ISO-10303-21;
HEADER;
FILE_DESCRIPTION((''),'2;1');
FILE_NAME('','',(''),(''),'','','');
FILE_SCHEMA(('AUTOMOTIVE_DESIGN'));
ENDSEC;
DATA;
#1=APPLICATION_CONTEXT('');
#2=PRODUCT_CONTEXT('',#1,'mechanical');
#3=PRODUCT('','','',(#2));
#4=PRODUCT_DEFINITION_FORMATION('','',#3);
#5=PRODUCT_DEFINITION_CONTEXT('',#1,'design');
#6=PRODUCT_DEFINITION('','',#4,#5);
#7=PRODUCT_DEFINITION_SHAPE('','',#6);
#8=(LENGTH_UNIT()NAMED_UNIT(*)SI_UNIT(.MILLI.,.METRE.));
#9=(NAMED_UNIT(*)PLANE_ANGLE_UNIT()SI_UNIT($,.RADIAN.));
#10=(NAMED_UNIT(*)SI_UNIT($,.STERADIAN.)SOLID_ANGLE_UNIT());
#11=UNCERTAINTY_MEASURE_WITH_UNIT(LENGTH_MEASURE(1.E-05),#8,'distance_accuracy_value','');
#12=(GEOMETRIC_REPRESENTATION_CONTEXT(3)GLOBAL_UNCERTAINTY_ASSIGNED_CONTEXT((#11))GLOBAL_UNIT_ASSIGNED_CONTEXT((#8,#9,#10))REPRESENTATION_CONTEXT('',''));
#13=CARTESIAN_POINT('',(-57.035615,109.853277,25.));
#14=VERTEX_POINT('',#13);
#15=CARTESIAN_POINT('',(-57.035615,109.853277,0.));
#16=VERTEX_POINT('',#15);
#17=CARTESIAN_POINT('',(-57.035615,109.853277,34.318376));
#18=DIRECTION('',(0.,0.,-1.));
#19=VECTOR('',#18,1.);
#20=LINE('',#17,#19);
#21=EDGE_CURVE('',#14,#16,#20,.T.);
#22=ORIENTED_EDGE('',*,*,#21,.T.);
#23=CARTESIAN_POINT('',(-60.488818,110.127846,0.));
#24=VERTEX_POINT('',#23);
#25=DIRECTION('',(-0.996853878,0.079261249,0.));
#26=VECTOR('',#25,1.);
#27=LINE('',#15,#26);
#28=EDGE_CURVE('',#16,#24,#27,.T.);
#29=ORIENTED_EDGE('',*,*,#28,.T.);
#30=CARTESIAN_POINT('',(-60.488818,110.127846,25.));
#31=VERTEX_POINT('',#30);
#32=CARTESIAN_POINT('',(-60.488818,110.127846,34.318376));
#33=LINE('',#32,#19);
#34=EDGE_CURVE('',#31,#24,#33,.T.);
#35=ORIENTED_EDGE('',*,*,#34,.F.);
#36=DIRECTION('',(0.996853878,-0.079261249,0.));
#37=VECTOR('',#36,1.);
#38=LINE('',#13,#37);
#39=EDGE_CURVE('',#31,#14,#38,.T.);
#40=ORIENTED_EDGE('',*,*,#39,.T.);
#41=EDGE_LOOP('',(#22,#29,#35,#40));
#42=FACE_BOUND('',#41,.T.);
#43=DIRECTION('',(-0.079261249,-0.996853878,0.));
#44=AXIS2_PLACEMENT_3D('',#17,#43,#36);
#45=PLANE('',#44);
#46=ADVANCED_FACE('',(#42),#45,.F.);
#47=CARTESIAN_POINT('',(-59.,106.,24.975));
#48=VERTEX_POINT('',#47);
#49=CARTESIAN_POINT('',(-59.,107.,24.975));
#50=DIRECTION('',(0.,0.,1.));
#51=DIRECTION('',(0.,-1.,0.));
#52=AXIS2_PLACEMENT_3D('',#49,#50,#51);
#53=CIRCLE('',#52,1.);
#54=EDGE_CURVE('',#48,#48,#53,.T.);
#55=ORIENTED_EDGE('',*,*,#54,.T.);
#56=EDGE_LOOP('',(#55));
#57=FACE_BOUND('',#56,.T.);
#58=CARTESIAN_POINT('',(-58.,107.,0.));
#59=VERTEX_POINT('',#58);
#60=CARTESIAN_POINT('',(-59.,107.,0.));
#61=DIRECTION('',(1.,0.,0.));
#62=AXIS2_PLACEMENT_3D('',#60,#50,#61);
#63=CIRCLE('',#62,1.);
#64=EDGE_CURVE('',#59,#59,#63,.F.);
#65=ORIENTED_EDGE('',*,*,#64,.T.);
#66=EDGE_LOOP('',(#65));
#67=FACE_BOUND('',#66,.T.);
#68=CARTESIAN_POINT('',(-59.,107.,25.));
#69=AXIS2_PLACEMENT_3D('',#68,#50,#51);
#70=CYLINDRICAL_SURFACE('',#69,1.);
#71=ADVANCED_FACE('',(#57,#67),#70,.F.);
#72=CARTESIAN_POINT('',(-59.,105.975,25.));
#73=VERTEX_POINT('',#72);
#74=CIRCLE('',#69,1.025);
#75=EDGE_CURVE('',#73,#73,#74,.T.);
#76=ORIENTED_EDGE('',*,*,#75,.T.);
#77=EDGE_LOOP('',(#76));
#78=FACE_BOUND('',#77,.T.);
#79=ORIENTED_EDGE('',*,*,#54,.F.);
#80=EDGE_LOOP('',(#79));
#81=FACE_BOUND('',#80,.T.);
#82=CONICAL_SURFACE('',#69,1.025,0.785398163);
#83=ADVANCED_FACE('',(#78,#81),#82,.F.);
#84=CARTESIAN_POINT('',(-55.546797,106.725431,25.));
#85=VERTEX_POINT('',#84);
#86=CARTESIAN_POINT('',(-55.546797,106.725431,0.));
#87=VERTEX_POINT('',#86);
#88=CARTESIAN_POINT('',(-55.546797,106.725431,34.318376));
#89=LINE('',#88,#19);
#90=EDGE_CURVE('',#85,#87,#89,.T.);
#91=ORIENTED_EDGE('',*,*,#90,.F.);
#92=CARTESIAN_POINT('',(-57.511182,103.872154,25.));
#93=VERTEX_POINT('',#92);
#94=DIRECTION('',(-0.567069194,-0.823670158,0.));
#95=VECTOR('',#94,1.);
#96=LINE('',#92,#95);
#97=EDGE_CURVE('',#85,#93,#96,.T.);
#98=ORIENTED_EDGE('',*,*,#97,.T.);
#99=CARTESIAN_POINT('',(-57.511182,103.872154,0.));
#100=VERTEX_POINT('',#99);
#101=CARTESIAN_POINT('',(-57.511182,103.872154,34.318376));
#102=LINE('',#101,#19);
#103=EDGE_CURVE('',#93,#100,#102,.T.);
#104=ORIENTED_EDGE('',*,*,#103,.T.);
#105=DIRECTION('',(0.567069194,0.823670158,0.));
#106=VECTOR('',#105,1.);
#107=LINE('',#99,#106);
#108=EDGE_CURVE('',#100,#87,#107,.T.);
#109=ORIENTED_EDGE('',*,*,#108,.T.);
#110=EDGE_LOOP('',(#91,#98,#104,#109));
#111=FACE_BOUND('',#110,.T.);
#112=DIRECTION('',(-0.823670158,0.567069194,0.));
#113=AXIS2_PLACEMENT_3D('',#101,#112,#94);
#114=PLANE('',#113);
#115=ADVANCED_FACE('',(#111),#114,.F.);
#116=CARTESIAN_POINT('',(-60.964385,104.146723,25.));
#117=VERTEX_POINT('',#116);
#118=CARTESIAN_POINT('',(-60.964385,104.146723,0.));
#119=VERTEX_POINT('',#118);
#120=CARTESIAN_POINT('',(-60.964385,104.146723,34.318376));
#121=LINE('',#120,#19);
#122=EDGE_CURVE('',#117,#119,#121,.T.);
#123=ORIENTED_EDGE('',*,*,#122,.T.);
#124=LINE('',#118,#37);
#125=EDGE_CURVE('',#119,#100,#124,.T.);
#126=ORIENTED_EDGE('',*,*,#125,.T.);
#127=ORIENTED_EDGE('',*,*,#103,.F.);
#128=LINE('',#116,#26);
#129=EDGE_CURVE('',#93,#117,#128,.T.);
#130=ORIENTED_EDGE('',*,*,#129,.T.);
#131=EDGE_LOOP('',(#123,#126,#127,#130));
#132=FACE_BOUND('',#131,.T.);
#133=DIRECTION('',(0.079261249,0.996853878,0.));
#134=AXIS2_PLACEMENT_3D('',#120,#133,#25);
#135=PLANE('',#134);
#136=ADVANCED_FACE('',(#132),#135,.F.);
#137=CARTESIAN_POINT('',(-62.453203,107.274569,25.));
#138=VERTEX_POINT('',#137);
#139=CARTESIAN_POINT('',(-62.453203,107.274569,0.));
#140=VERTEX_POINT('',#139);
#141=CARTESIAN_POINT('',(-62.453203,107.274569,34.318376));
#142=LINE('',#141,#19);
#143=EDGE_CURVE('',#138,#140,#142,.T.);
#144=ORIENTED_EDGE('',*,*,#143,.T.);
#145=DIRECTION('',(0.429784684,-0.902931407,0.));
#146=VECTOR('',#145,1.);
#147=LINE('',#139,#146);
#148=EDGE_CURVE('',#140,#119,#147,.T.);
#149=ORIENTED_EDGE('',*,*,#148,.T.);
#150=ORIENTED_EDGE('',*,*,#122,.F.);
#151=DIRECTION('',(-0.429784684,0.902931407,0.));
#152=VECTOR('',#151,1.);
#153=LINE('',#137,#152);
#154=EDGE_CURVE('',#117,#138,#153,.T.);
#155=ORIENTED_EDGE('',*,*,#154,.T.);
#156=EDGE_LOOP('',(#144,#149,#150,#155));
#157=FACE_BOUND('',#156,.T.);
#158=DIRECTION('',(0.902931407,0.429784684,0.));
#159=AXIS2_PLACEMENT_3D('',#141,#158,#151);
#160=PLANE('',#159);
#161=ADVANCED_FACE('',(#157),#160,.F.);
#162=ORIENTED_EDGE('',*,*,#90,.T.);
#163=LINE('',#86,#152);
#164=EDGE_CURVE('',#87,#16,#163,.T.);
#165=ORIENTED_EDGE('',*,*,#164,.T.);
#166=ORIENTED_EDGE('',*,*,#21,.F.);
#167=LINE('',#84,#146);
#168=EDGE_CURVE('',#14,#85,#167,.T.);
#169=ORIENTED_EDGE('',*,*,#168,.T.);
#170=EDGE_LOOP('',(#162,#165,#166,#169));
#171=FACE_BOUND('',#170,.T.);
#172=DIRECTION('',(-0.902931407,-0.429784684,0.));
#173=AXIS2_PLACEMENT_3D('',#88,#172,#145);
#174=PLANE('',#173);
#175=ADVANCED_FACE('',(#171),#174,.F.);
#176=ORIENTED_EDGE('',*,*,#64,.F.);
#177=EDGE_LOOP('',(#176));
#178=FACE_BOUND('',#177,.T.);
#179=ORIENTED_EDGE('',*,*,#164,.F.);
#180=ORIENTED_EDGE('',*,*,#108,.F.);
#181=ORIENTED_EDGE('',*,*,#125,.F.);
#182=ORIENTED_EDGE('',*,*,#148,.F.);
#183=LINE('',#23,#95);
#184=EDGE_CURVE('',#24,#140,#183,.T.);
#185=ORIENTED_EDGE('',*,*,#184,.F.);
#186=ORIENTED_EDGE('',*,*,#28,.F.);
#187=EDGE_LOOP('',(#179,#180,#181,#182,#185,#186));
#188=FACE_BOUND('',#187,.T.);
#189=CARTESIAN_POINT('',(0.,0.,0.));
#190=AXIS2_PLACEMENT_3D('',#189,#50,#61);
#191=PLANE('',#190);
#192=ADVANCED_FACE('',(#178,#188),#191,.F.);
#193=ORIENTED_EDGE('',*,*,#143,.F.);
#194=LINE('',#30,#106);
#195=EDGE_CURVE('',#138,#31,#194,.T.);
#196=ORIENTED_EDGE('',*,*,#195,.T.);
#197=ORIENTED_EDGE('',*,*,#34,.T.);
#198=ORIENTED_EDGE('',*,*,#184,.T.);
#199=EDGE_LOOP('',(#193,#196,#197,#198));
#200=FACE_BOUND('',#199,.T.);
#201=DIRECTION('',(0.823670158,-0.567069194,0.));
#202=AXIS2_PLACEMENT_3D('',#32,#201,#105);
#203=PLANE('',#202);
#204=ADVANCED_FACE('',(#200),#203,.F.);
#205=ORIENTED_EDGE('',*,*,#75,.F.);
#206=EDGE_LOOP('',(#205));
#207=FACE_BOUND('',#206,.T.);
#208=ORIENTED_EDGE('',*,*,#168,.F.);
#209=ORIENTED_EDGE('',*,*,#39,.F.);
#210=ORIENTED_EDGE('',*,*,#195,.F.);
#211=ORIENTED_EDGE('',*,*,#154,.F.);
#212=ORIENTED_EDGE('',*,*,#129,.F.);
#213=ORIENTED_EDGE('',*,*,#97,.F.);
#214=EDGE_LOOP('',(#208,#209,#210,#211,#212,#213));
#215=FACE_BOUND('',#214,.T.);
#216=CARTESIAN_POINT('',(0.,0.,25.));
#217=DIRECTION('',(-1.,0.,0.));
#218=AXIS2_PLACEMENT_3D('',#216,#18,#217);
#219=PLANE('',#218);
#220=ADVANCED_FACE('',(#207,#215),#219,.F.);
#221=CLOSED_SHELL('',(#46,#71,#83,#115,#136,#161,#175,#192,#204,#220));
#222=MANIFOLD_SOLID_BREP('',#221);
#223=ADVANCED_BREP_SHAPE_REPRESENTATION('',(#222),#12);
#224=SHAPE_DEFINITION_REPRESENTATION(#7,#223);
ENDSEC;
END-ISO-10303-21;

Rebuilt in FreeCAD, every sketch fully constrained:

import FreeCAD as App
import Part
import Sketcher
from FreeCAD import Vector

doc = App.newDocument("Part")
body = doc.addObject("PartDesign::Body", "Body")

# Sketch on XY plane
sketch1 = body.newObject("Sketcher::SketchObject", "Sketch")
sketch1.AttachmentSupport = (doc.getObject("XY_Plane"), [""])
sketch1.MapMode = "FlatFace"
sketch1.addGeometry([
    Part.LineSegment(Vector(-60.5, 110.1, 0), Vector(-62.5, 107.3, 0)),  # 0
    Part.LineSegment(Vector(-62.5, 107.3, 0), Vector(-61, 104.1, 0)),  # 1
    Part.LineSegment(Vector(-61, 104.1, 0), Vector(-57.5, 103.9, 0)),  # 2
    Part.LineSegment(Vector(-57.5, 103.9, 0), Vector(-55.5, 106.7, 0)),  # 3
    Part.LineSegment(Vector(-55.5, 106.7, 0), Vector(-57, 109.9, 0)),  # 4
    Part.LineSegment(Vector(-57, 109.9, 0), Vector(-60.5, 110.1, 0)),  # 5
], False)
sketch1.addConstraint([
    Sketcher.Constraint("Coincident", 0, 2, 1, 1),
    Sketcher.Constraint("Coincident", 1, 2, 2, 1),
    Sketcher.Constraint("Coincident", 2, 2, 3, 1),
    Sketcher.Constraint("Coincident", 3, 2, 4, 1),
    Sketcher.Constraint("Coincident", 4, 2, 5, 1),
    Sketcher.Constraint("Coincident", 5, 2, 0, 1),
    Sketcher.Constraint("Parallel", 0, 3),
    Sketcher.Constraint("Parallel", 1, 4),
    Sketcher.Constraint("Parallel", 2, 5),
    Sketcher.Constraint("Equal", 0, 1),
    Sketcher.Constraint("Equal", 1, 2),
    Sketcher.Constraint("Equal", 2, 3),
    Sketcher.Constraint("Distance", 0, 3.464102),
    Sketcher.Constraint("DistanceY", -1, 1, 0, 2, 107.274569),
    Sketcher.Constraint("DistanceY", -1, 1, 3, 2, 106.725431),
    Sketcher.Constraint("DistanceY", 2, 2, 1, 2, 0.274569),
    Sketcher.Constraint("DistanceX", 0, 2, 2, 2, 4.942021),
    Sketcher.Constraint("DistanceX", 0, 2, -1, 1, 62.453203),
])
pad1 = body.newObject("PartDesign::Pad", "Pad")
pad1.Profile = sketch1
pad1.Length = 25

# Sketch on XY plane
sketch2 = body.newObject("Sketcher::SketchObject", "Sketch001")
sketch2.AttachmentSupport = (doc.getObject("XY_Plane"), [""])
sketch2.MapMode = "FlatFace"
sketch2.AttachmentOffset = App.Placement(Vector(0, 0, 25), App.Rotation())
sketch2.addGeometry(Part.Circle(Vector(-59, 107, 0), Vector(0, 0, 1), 1), False)
sketch2.addConstraint([
    Sketcher.Constraint("Diameter", 0, 2.0),
    Sketcher.Constraint("DistanceX", 0, 3, -1, 1, 59.0),
    Sketcher.Constraint("DistanceY", -1, 1, 0, 3, 107.0),
])
doc.recompute()
hole = body.newObject("PartDesign::Hole", "Hole")
hole.Profile = sketch2
hole.ThreadType = "None"
hole.Diameter = 2
hole.DepthType = "Dimension"
hole.Depth = 25
hole.DrillPoint = "Angled"
hole.DrillPointAngle = 118
hole.HoleCutType = "Countersink"
hole.HoleCutDiameter = 2.05
hole.HoleCutCountersinkAngle = 90

doc.recompute()
